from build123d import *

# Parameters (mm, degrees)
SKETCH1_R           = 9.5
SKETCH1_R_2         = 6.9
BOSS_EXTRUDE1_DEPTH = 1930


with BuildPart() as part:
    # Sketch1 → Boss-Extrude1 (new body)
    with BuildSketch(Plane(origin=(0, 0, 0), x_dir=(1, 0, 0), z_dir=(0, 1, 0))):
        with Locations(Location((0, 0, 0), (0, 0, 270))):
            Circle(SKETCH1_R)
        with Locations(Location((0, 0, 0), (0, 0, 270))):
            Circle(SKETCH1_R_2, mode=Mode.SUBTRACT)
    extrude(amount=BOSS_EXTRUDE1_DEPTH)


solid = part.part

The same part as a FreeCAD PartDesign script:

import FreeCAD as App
import Part
import Sketcher
Q = App.Units.Quantity

doc = App.newDocument("Part")
body = doc.addObject("PartDesign::Body", "Body")

sketch1 = body.newObject("Sketcher::SketchObject", "Sketch")
sketch1.AttachmentSupport = (doc.getObject("XZ_Plane"), [""])
sketch1.MapMode = "FlatFace"
sketch1.addGeometry([
    Part.Circle(App.Vector(0, 0, 0), App.Vector(0, 0, 1), 10),
    Part.Circle(App.Vector(0, 0, 0), App.Vector(0, 0, 1), 7),
], False)
sketch1.addConstraint([
    Sketcher.Constraint("Coincident", 0, 3, -1, 1),
    Sketcher.Constraint("Coincident", 1, 3, -1, 1),
    Sketcher.Constraint("Diameter", 0, Q("19 mm")),
    Sketcher.Constraint("Diameter", 1, Q("13.8 mm")),
])
pad1 = body.newObject("PartDesign::Pad", "Pad")
pad1.Profile = sketch1
pad1.Length = 1930
pad1.Reversed = True

doc.recompute()
